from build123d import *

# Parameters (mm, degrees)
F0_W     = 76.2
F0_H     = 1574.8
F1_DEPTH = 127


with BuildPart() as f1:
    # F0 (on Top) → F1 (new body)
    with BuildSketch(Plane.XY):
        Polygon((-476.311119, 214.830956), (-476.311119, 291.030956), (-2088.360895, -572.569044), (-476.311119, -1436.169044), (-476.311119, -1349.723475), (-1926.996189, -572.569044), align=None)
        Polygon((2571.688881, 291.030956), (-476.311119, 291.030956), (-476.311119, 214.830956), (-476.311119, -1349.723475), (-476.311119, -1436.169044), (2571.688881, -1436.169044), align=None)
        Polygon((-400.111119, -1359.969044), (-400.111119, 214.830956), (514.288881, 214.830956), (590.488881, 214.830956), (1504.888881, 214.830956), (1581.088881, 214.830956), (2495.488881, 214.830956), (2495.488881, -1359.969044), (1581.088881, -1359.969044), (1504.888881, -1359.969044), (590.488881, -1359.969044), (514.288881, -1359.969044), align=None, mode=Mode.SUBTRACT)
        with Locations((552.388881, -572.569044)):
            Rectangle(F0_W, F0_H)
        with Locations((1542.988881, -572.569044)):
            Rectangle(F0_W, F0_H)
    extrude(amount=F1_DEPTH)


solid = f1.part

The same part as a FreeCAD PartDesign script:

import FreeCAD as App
import Part
import Sketcher

V = App.Vector
Q = App.Units.Quantity

doc = App.newDocument("Part")
body = doc.addObject("PartDesign::Body", "Body")

# Sketch on XY plane
sketch1 = body.newObject("Sketcher::SketchObject", "Sketch")
sketch1.AttachmentSupport = (doc.getObject("XY_Plane"), [""])
sketch1.MapMode = "FlatFace"
sketch1.addGeometry(Part.LineSegment(V(-476, 291, 0), V(-2088, -573, 0)), False)
sketch1.addGeometry(Part.LineSegment(V(-2088, -573, 0), V(-476, -1436, 0)), False)
sketch1.addGeometry(Part.LineSegment(V(-476, -1436, 0), V(2572, -1436, 0)), False)
sketch1.addGeometry(Part.LineSegment(V(2572, -1436, 0), V(2572, 291, 0)), False)
sketch1.addGeometry(Part.LineSegment(V(2572, 291, 0), V(-476, 291, 0)), False)
sketch1.addGeometry(Part.LineSegment(V(-476, -1350, 0), V(-1927, -573, 0)), False)
sketch1.addGeometry(Part.LineSegment(V(-1927, -573, 0), V(-476, 215, 0)), False)
sketch1.addGeometry(Part.LineSegment(V(-476, 215, 0), V(-476, -1350, 0)), False)
sketch1.addGeometry(Part.LineSegment(V(2495, -1360, 0), V(1581, -1360, 0)), False)
sketch1.addGeometry(Part.LineSegment(V(1581, -1360, 0), V(1581, 215, 0)), False)
sketch1.addGeometry(Part.LineSegment(V(1581, 215, 0), V(2495, 215, 0)), False)
sketch1.addGeometry(Part.LineSegment(V(2495, 215, 0), V(2495, -1360, 0)), False)
sketch1.addGeometry(Part.LineSegment(V(1505, -1360, 0), V(590, -1360, 0)), False)
sketch1.addGeometry(Part.LineSegment(V(590, -1360, 0), V(590, 215, 0)), False)
sketch1.addGeometry(Part.LineSegment(V(590, 215, 0), V(1505, 215, 0)), False)
sketch1.addGeometry(Part.LineSegment(V(1505, 215, 0), V(1505, -1360, 0)), False)
sketch1.addGeometry(Part.LineSegment(V(514, -1360, 0), V(-400, -1360, 0)), False)
sketch1.addGeometry(Part.LineSegment(V(-400, -1360, 0), V(-400, 215, 0)), False)
sketch1.addGeometry(Part.LineSegment(V(-400, 215, 0), V(514, 215, 0)), False)
sketch1.addGeometry(Part.LineSegment(V(514, 215, 0), V(514, -1360, 0)), False)
sketch1.addConstraint(Sketcher.Constraint("Coincident", 0, 2, 1, 1))
sketch1.addConstraint(Sketcher.Constraint("Coincident", 1, 2, 2, 1))
sketch1.addConstraint(Sketcher.Constraint("Coincident", 2, 2, 3, 1))
sketch1.addConstraint(Sketcher.Constraint("Coincident", 3, 2, 4, 1))
sketch1.addConstraint(Sketcher.Constraint("Coincident", 4, 2, 0, 1))
sketch1.addConstraint(Sketcher.Constraint("Coincident", 5, 2, 6, 1))
sketch1.addConstraint(Sketcher.Constraint("Coincident", 6, 2, 7, 1))
sketch1.addConstraint(Sketcher.Constraint("Coincident", 7, 2, 5, 1))
sketch1.addConstraint(Sketcher.Constraint("Coincident", 8, 2, 9, 1))
sketch1.addConstraint(Sketcher.Constraint("Coincident", 9, 2, 10, 1))
sketch1.addConstraint(Sketcher.Constraint("Coincident", 10, 2, 11, 1))
sketch1.addConstraint(Sketcher.Constraint("Coincident", 11, 2, 8, 1))
sketch1.addConstraint(Sketcher.Constraint("Coincident", 12, 2, 13, 1))
sketch1.addConstraint(Sketcher.Constraint("Coincident", 13, 2, 14, 1))
sketch1.addConstraint(Sketcher.Constraint("Coincident", 14, 2, 15, 1))
sketch1.addConstraint(Sketcher.Constraint("Coincident", 15, 2, 12, 1))
sketch1.addConstraint(Sketcher.Constraint("Coincident", 16, 2, 17, 1))
sketch1.addConstraint(Sketcher.Constraint("Coincident", 17, 2, 18, 1))
sketch1.addConstraint(Sketcher.Constraint("Coincident", 18, 2, 19, 1))
sketch1.addConstraint(Sketcher.Constraint("Coincident", 19, 2, 16, 1))
sketch1.addConstraint(Sketcher.Constraint("Horizontal", 2))
sketch1.addConstraint(Sketcher.Constraint("Vertical", 3))
sketch1.addConstraint(Sketcher.Constraint("Horizontal", 4))
sketch1.addConstraint(Sketcher.Constraint("Vertical", 7))
sketch1.addConstraint(Sketcher.Constraint("Horizontal", 8))
sketch1.addConstraint(Sketcher.Constraint("Vertical", 9))
sketch1.addConstraint(Sketcher.Constraint("Horizontal", 10))
sketch1.addConstraint(Sketcher.Constraint("Vertical", 11))
sketch1.addConstraint(Sketcher.Constraint("Horizontal", 12))
sketch1.addConstraint(Sketcher.Constraint("Vertical", 13))
sketch1.addConstraint(Sketcher.Constraint("Horizontal", 14))
sketch1.addConstraint(Sketcher.Constraint("Vertical", 15))
sketch1.addConstraint(Sketcher.Constraint("Horizontal", 16))
sketch1.addConstraint(Sketcher.Constraint("Vertical", 17))
sketch1.addConstraint(Sketcher.Constraint("Horizontal", 18))
sketch1.addConstraint(Sketcher.Constraint("Vertical", 19))
sketch1.addConstraint(Sketcher.Constraint("Parallel", 1, 5))
sketch1.addConstraint(Sketcher.Constraint("Horizontal", 0, 2, 5, 2))
sketch1.addConstraint(Sketcher.Constraint("Horizontal", 6, 2, 9, 2))
sketch1.addConstraint(Sketcher.Constraint("Horizontal", 11, 2, 12, 2))
sketch1.addConstraint(Sketcher.Constraint("Horizontal", 10, 2, 13, 2))
sketch1.addConstraint(Sketcher.Constraint("Horizontal", 15, 2, 16, 2))
sketch1.addConstraint(Sketcher.Constraint("Horizontal", 14, 2, 17, 2))
sketch1.addConstraint(Sketcher.Constraint("Vertical", 1, 2, 4, 2))
sketch1.addConstraint(Sketcher.Constraint("Vertical", 4, 2, 6, 2))
sketch1.addConstraint(Sketcher.Constraint("Equal", 10, 12))
sketch1.addConstraint(Sketcher.Constraint("Equal", 14, 16))
sketch1.addConstraint(Sketcher.Constraint("Equal", 0, 1))
sketch1.addConstraint(Sketcher.Constraint("DistanceX", 2, 1, 2, 2, Q("120 in")))
sketch1.addConstraint(Sketcher.Constraint("DistanceX", 8, 2, 8, 1, Q("36 in")))
sketch1.addConstraint(Sketcher.Constraint("DistanceY", 3, 1, 3, 2, Q("68 in")))
sketch1.addConstraint(Sketcher.Constraint("DistanceY", 9, 1, 9, 2, Q("62 in")))
sketch1.addConstraint(Sketcher.Constraint("Distance", 0, Q("72 in")))
sketch1.addConstraint(Sketcher.Constraint("DistanceY", 6, 2, 4, 2, Q("3 in")))
sketch1.addConstraint(Sketcher.Constraint("DistanceX", 8, 2, 2, 2, Q("39 in")))
sketch1.addConstraint(Sketcher.Constraint("DistanceX", 12, 2, 8, 2, Q("39 in")))
sketch1.addConstraint(Sketcher.Constraint("DistanceX", 7, 2, 16, 2, Q("3 in")))
sketch1.addConstraint(Sketcher.Constraint("DistanceY", 7, 2, 7, 1, Q("1564.554431 mm")))
sketch1.addConstraint(Sketcher.Constraint("DistanceX", 1, 2, -1, 1, Q("476.311119 mm")))
sketch1.addConstraint(Sketcher.Constraint("DistanceY", 0, 2, -1, 1, Q("572.569044 mm")))
pad1 = body.newObject("PartDesign::Pad", "Pad")
pad1.Profile = sketch1
pad1.Length = Q("5 in")

doc.recompute()
